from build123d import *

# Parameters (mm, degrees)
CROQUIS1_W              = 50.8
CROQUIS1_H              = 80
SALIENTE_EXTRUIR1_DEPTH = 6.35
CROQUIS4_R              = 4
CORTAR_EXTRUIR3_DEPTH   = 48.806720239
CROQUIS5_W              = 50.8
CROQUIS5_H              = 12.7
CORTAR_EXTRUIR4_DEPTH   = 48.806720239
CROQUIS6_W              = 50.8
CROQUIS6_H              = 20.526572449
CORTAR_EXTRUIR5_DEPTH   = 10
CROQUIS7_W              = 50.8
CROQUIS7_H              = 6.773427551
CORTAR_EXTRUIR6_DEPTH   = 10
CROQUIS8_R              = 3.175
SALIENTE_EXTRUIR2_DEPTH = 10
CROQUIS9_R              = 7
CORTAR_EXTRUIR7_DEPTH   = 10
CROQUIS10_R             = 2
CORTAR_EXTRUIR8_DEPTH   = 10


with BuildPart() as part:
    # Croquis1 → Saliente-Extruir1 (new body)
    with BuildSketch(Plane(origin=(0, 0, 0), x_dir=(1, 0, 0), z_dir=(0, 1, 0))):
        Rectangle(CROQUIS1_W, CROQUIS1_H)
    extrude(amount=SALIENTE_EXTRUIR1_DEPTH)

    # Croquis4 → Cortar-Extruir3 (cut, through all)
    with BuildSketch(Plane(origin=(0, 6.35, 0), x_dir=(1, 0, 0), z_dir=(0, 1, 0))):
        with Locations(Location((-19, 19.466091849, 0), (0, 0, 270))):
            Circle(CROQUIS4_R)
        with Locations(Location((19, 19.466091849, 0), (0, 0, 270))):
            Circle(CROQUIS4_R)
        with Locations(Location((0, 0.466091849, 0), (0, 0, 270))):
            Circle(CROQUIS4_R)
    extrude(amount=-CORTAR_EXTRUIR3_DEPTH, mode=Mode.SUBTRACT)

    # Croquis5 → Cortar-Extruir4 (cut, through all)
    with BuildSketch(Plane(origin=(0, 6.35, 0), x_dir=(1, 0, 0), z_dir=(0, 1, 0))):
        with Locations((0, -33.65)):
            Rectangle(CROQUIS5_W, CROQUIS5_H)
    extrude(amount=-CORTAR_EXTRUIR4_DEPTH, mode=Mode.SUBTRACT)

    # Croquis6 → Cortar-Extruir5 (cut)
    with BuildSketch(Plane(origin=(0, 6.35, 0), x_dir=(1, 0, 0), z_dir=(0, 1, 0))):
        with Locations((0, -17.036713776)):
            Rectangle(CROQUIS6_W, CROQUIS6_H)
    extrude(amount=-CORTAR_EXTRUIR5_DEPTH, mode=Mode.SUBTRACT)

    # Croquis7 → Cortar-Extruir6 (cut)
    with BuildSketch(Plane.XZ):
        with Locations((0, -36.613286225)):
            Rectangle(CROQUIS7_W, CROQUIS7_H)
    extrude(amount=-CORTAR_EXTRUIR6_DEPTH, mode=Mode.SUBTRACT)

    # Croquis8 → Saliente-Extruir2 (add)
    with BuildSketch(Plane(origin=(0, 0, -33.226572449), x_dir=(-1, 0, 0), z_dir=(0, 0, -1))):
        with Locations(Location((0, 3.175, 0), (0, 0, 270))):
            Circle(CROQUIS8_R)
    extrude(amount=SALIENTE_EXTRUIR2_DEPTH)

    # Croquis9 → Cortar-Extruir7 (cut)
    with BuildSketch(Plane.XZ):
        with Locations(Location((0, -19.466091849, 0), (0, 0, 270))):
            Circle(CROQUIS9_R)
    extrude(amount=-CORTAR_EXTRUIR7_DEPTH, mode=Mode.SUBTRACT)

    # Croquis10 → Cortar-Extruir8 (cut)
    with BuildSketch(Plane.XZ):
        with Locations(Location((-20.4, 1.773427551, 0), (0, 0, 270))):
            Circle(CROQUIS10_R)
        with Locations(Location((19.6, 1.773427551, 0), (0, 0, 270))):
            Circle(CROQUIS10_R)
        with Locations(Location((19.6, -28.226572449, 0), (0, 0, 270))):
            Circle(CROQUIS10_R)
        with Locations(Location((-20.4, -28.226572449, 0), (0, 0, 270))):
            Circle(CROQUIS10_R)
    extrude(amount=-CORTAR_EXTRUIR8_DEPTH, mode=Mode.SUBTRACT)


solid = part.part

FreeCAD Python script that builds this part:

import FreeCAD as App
import Part
import Sketcher

V = App.Vector


def add_polygon(sketch, points):
    """Adds a closed chain of lines whose ends are joined by coincident constraints."""
    first, n = sketch.GeometryCount, len(points)
    for a, b in zip(points, points[1:] + points[:1]):
        sketch.addGeometry(Part.LineSegment(App.Vector(*a, 0), App.Vector(*b, 0)), False)
    for i in range(n):
        sketch.addConstraint(Sketcher.Constraint("Coincident", first + i, 2, first + (i + 1) % n, 1))

doc = App.newDocument("Part")
body = doc.addObject("PartDesign::Body", "Body")

sketch1 = body.newObject("Sketcher::SketchObject", "Sketch")
sketch1.AttachmentSupport = (doc.getObject("XZ_Plane"), [""])
sketch1.MapMode = "FlatFace"
add_polygon(sketch1, [(-25.4, -40), (-25.4, 40), (25.4, 40), (25.4, -40)])
sketch1.addConstraint([
    Sketcher.Constraint("Vertical", 0),
    Sketcher.Constraint("Horizontal", 1),
    Sketcher.Constraint("Vertical", 2),
    Sketcher.Constraint("Horizontal", 3),
    Sketcher.Constraint("Symmetric", 0, 2, 2, 2, -1, 1),
    Sketcher.Constraint("DistanceY", 0, 1, 0, 2, 80.0),
    Sketcher.Constraint("DistanceX", 1, 1, 1, 2, 50.8),
])
pad1 = body.newObject("PartDesign::Pad", "Pad")
pad1.Profile = sketch1
pad1.Length = 6.35
pad1.Reversed = True

sketch2 = body.newObject("Sketcher::SketchObject", "Sketch001")
sketch2.AttachmentSupport = (doc.getObject("XZ_Plane"), [""])
sketch2.MapMode = "FlatFace"
sketch2.AttachmentOffset = App.Placement(V(0, 0, -6.35), App.Rotation())
sketch2.addGeometry([
    Part.Circle(V(-19, -19.466092, 0), V(0, 0, 1), 4),
    Part.Circle(V(19, -19.466092, 0), V(0, 0, 1), 4),
    Part.Circle(V(0, -0.466092, 0), V(0, 0, 1), 4),
], False)
sketch2.addConstraint([
    Sketcher.Constraint("Equal", 0, 1),
    Sketcher.Constraint("Equal", 1, 2),
    Sketcher.Constraint("Symmetric", 0, 3, 1, 3, -2),
    Sketcher.Constraint("PointOnObject", 2, 3, -2),
    Sketcher.Constraint("Diameter", 0, 8.0),
    Sketcher.Constraint("DistanceX", 0, 3, -1, 1, 19.0),
    Sketcher.Constraint("DistanceY", 0, 3, 2, 3, 19.0),
    Sketcher.Constraint("DistanceY", 0, 3, -1, 1, 19.466092),
])
pocket1 = body.newObject("PartDesign::Pocket", "Pocket")
pocket1.Profile = sketch2
pocket1.Type = "ThroughAll"
pocket1.Reversed = True

sketch3 = body.newObject("Sketcher::SketchObject", "Sketch002")
sketch3.AttachmentSupport = (doc.getObject("XZ_Plane"), [""])
sketch3.MapMode = "FlatFace"
sketch3.AttachmentOffset = App.Placement(V(0, 0, -6.35), App.Rotation())
add_polygon(sketch3, [(-25.4, 27.3), (-25.4, 40), (25.4, 40), (25.4, 27.3)])
sketch3.addConstraint([
    Sketcher.Constraint("Vertical", 0),
    Sketcher.Constraint("Horizontal", 1),
    Sketcher.Constraint("Vertical", 2),
    Sketcher.Constraint("Horizontal", 3),
    Sketcher.Constraint("DistanceX", 1, 1, 1, 2, 50.8),
    Sketcher.Constraint("DistanceY", 0, 1, 0, 2, 12.7),
    Sketcher.Constraint("DistanceY", -1, 1, 0, 2, 40.0),
    Sketcher.Constraint("DistanceX", 0, 2, -1, 1, 25.4),
])
pocket2 = body.newObject("PartDesign::Pocket", "Pocket001")
pocket2.Profile = sketch3
pocket2.Type = "ThroughAll"
pocket2.Reversed = True

sketch4 = body.newObject("Sketcher::SketchObject", "Sketch003")
sketch4.AttachmentSupport = (doc.getObject("XZ_Plane"), [""])
sketch4.MapMode = "FlatFace"
sketch4.AttachmentOffset = App.Placement(V(0, 0, -6.35), App.Rotation())
add_polygon(sketch4, [(-25.4, 6.773428), (-25.4, 27.3), (25.4, 27.3), (25.4, 6.773428)])
sketch4.addConstraint([
    Sketcher.Constraint("Vertical", 0),
    Sketcher.Constraint("Horizontal", 1),
    Sketcher.Constraint("Vertical", 2),
    Sketcher.Constraint("Horizontal", 3),
    Sketcher.Constraint("DistanceX", 1, 1, 1, 2, 50.8),
    Sketcher.Constraint("DistanceX", 0, 2, -1, 1, 25.4),
    Sketcher.Constraint("DistanceY", -1, 1, 0, 2, 27.3),
    Sketcher.Constraint("DistanceY", 0, 1, 0, 2, 20.526572),
])
pocket3 = body.newObject("PartDesign::Pocket", "Pocket002")
pocket3.Profile = sketch4
pocket3.Length = 10
pocket3.Reversed = True

sketch5 = body.newObject("Sketcher::SketchObject", "Sketch004")
sketch5.AttachmentSupport = (doc.getObject("XZ_Plane"), [""])
sketch5.MapMode = "FlatFace"
add_polygon(sketch5, [(-25.4, -33.226572), (-25.4, -40), (25.4, -40), (25.4, -33.226572)])
sketch5.addConstraint([
    Sketcher.Constraint("Vertical", 0),
    Sketcher.Constraint("Horizontal", 1),
    Sketcher.Constraint("Vertical", 2),
    Sketcher.Constraint("Horizontal", 3),
    Sketcher.Constraint("DistanceX", 1, 1, 1, 2, 50.8),
    Sketcher.Constraint("DistanceY", 0, 2, -1, 1, 40.0),
    Sketcher.Constraint("DistanceX", 0, 2, -1, 1, 25.4),
    Sketcher.Constraint("DistanceY", 0, 2, 0, 1, 6.773428),
])
pocket4 = body.newObject("PartDesign::Pocket", "Pocket003")
pocket4.Profile = sketch5
pocket4.Length = 10

sketch6 = body.newObject("Sketcher::SketchObject", "Sketch005")
sketch6.AttachmentSupport = (doc.getObject("XY_Plane"), [""])
sketch6.MapMode = "FlatFace"
sketch6.AttachmentOffset = App.Placement(V(0, 0, -33.226572), App.Rotation())
sketch6.addGeometry(Part.Circle(V(0, 3.175, 0), V(0, 0, 1), 3.175), False)
sketch6.addConstraint([
    Sketcher.Constraint("PointOnObject", 0, 3, -2),
    Sketcher.Constraint("Diameter", 0, 6.35),
    Sketcher.Constraint("DistanceY", -1, 1, 0, 3, 3.175),
])
pad2 = body.newObject("PartDesign::Pad", "Pad001")
pad2.Profile = sketch6
pad2.Length = 10
pad2.Reversed = True

sketch7 = body.newObject("Sketcher::SketchObject", "Sketch006")
sketch7.AttachmentSupport = (doc.getObject("XZ_Plane"), [""])
sketch7.MapMode = "FlatFace"
sketch7.addGeometry(Part.Circle(V(0, -19.466092, 0), V(0, 0, 1), 7), False)
sketch7.addConstraint([
    Sketcher.Constraint("PointOnObject", 0, 3, -2),
    Sketcher.Constraint("Diameter", 0, 14.0),
    Sketcher.Constraint("DistanceY", 0, 3, -1, 1, 19.466092),
])
pocket5 = body.newObject("PartDesign::Pocket", "Pocket004")
pocket5.Profile = sketch7
pocket5.Length = 10

sketch8 = body.newObject("Sketcher::SketchObject", "Sketch007")
sketch8.AttachmentSupport = (doc.getObject("XZ_Plane"), [""])
sketch8.MapMode = "FlatFace"
sketch8.addGeometry([
    Part.Circle(V(-20.4, 1.773428, 0), V(0, 0, 1), 2),
    Part.Circle(V(19.6, 1.773428, 0), V(0, 0, 1), 2),
    Part.Circle(V(19.6, -28.226572, 0), V(0, 0, 1), 2),
    Part.Circle(V(-20.4, -28.226572, 0), V(0, 0, 1), 2),
], False)
sketch8.addConstraint([
    Sketcher.Constraint("Equal", 0, 1),
    Sketcher.Constraint("Equal", 1, 2),
    Sketcher.Constraint("Equal", 2, 3),
    Sketcher.Constraint("Horizontal", 0, 3, 1, 3),
    Sketcher.Constraint("Horizontal", 2, 3, 3, 3),
    Sketcher.Constraint("Vertical", 1, 3, 2, 3),
    Sketcher.Constraint("Vertical", 0, 3, 3, 3),
    Sketcher.Constraint("Diameter", 0, 4.0),
    Sketcher.Constraint("DistanceX", 0, 3, 1, 3, 40.0),
    Sketcher.Constraint("DistanceY", 2, 3, 1, 3, 30.0),
    Sketcher.Constraint("DistanceX", 0, 3, -1, 1, 20.4),
    Sketcher.Constraint("DistanceY", -1, 1, 0, 3, 1.773428),
])
pocket6 = body.newObject("PartDesign::Pocket", "Pocket005")
pocket6.Profile = sketch8
pocket6.Length = 10

doc.recompute()
